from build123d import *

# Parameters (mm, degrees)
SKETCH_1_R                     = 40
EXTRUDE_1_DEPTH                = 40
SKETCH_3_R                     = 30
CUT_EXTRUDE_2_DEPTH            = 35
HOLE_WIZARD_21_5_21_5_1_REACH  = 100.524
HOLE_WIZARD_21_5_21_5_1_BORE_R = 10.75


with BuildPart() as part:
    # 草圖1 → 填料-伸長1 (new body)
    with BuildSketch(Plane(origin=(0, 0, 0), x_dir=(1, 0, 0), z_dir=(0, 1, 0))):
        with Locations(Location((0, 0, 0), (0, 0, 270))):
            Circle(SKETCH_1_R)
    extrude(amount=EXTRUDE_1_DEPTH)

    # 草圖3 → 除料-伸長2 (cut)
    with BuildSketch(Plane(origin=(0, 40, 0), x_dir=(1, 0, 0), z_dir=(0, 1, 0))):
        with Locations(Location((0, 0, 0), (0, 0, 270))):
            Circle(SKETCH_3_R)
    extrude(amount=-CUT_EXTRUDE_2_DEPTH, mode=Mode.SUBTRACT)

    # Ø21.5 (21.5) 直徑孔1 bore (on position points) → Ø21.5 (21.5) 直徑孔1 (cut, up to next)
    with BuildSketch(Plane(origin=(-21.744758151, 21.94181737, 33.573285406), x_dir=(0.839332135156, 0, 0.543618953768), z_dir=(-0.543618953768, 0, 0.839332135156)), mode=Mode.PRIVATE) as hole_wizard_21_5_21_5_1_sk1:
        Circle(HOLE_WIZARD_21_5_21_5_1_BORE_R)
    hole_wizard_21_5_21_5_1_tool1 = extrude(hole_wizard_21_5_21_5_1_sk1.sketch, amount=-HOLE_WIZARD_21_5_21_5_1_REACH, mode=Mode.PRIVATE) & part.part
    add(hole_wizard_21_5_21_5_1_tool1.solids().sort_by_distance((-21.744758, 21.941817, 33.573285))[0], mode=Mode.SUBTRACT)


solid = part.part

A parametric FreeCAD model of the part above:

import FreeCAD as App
import Part
import Sketcher

V = App.Vector

doc = App.newDocument("Part")
body = doc.addObject("PartDesign::Body", "Body")

# Sketch on XZ plane
sketch1 = body.newObject("Sketcher::SketchObject", "Sketch")
sketch1.AttachmentSupport = (doc.getObject("XZ_Plane"), [""])
sketch1.MapMode = "FlatFace"
sketch1.addGeometry(Part.Circle(V(0, 0, 0), V(0, 0, 1), 40), False)
sketch1.addConstraint(Sketcher.Constraint("Coincident", 0, 3, -1, 1))
sketch1.addConstraint(Sketcher.Constraint("Diameter", 0, 80.0))
pad1 = body.newObject("PartDesign::Pad", "Pad")
pad1.Profile = sketch1
pad1.Length = 40
pad1.Reversed = True

# Sketch on XZ plane
sketch2 = body.newObject("Sketcher::SketchObject", "Sketch001")
sketch2.AttachmentSupport = (doc.getObject("XZ_Plane"), [""])
sketch2.MapMode = "FlatFace"
sketch2.AttachmentOffset = App.Placement(V(0, 0, -40), App.Rotation())
sketch2.addGeometry(Part.Circle(V(0, 0, 0), V(0, 0, 1), 30), False)
sketch2.addConstraint(Sketcher.Constraint("Coincident", 0, 3, -1, 1))
sketch2.addConstraint(Sketcher.Constraint("Diameter", 0, 60.0))
pocket1 = body.newObject("PartDesign::Pocket", "Pocket")
pocket1.Profile = sketch2
pocket1.Length = 35
pocket1.Reversed = True

# Sketch on an angled plane
sketch3 = body.newObject("Sketcher::SketchObject", "Sketch002")
sketch3.Placement = App.Placement(V(-21.744758, 21.941817, 33.573285), App.Rotation(V(0.839332135, 0, 0.543618954), V(0, 1, 0), V(-0.543618954, 0, 0.839332135), "ZXY"))
sketch3.addGeometry(Part.Circle(V(0, 0, 0), V(0, 0, 1), 10.75), False)
sketch3.addConstraint(Sketcher.Constraint("Coincident", 0, 3, -1, 1))
sketch3.addConstraint(Sketcher.Constraint("Diameter", 0, 21.5))
pocket2 = body.newObject("PartDesign::Pocket", "Pocket001")
pocket2.Profile = sketch3
pocket2.Type = "UpToFirst"

doc.recompute()
